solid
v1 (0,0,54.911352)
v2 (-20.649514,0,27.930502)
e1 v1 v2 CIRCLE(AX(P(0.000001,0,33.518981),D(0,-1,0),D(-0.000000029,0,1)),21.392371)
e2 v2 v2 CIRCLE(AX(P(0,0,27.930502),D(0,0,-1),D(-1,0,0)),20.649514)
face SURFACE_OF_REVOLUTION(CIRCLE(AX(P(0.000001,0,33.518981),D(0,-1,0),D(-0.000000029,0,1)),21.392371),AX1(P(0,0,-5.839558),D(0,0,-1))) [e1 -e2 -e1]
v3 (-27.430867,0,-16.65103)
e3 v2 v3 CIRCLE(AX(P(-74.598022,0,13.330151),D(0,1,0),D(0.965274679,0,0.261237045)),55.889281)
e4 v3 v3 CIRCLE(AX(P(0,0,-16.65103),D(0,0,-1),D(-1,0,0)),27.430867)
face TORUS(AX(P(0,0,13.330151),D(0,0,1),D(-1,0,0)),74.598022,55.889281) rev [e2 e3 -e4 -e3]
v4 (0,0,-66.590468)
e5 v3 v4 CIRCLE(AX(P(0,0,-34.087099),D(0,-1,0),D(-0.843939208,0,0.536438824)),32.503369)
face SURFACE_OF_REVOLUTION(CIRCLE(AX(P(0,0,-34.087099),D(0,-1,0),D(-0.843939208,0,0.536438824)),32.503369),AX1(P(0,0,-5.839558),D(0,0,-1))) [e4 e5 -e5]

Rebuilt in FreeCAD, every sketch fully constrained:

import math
import FreeCAD as App
import Part
import Sketcher
from FreeCAD import Vector
Q = App.Units.Quantity

doc = App.newDocument("Part")
params = doc.addObject("Spreadsheet::Sheet", "Params")
for row, (alias, value) in enumerate([
    ("revolution_angle", "360 deg"),
], start=1):
    params.set(f"A{row}", alias)
    params.set(f"B{row}", "=" + value)
    params.setAlias(f"B{row}", alias)

body = doc.addObject("PartDesign::Body", "Body")

# Sketch on XZ plane
sketch1 = doc.addObject("Sketcher::SketchObject", "Sketch")
body.addObject(sketch1)
sketch1.AttachmentSupport = (doc.XZ_Plane, [""])
sketch1.MapMode = "FlatFace"
sketch1.addGeometry(Part.LineSegment(Vector(0, -67, 0), Vector(0, 55, 0)), False)
sketch1.addGeometry(Part.ArcOfCircle(Part.Circle(Vector(0, 34, 0), Vector(0, 0, 1), 21), math.radians(90), math.radians(195)), False)
sketch1.addGeometry(Part.ArcOfCircle(Part.Circle(Vector(-75, 13, 0), Vector(0, 0, 1), 56), math.radians(-32), math.radians(15)), False)
sketch1.addGeometry(Part.ArcOfCircle(Part.Circle(Vector(0, -34, 0), Vector(0, 0, 1), 33), math.radians(148), math.radians(270)), False)
sketch1.addConstraint(Sketcher.Constraint("Coincident", 0, 2, 1, 1))
sketch1.addConstraint(Sketcher.Constraint("Tangent", 1, 2, 2, 2))
sketch1.addConstraint(Sketcher.Constraint("Tangent", 2, 1, 3, 1))
sketch1.addConstraint(Sketcher.Constraint("Coincident", 3, 2, 0, 1))
sketch1.addConstraint(Sketcher.Constraint("Vertical", 0))
sketch1.addConstraint(Sketcher.Constraint("PointOnObject", 1, 3, -2))
sketch1.addConstraint(Sketcher.Constraint("PointOnObject", 3, 3, -2))
sketch1.addConstraint(Sketcher.Constraint("PointOnObject", 0, 2, -2))
sketch1.addConstraint(Sketcher.Constraint("Radius", 1, Q("21.392371 mm")))
sketch1.addConstraint(Sketcher.Constraint("Radius", 2, Q("55.889281 mm")))
sketch1.addConstraint(Sketcher.Constraint("Radius", 3, Q("32.503369 mm")))
sketch1.addConstraint(Sketcher.Constraint("DistanceY", 0, 1, 0, 2, Q("121.50182 mm")))
sketch1.addConstraint(Sketcher.Constraint("DistanceY", 3, 3, -1, 1, Q("34.087099 mm")))
revolution = doc.addObject("PartDesign::Revolution", "Revolution")
body.addObject(revolution)
revolution.Profile = sketch1
revolution.ReferenceAxis = (sketch1, ["V_Axis"])
revolution.setExpression("Angle", "Params.revolution_angle")

doc.recompute()
